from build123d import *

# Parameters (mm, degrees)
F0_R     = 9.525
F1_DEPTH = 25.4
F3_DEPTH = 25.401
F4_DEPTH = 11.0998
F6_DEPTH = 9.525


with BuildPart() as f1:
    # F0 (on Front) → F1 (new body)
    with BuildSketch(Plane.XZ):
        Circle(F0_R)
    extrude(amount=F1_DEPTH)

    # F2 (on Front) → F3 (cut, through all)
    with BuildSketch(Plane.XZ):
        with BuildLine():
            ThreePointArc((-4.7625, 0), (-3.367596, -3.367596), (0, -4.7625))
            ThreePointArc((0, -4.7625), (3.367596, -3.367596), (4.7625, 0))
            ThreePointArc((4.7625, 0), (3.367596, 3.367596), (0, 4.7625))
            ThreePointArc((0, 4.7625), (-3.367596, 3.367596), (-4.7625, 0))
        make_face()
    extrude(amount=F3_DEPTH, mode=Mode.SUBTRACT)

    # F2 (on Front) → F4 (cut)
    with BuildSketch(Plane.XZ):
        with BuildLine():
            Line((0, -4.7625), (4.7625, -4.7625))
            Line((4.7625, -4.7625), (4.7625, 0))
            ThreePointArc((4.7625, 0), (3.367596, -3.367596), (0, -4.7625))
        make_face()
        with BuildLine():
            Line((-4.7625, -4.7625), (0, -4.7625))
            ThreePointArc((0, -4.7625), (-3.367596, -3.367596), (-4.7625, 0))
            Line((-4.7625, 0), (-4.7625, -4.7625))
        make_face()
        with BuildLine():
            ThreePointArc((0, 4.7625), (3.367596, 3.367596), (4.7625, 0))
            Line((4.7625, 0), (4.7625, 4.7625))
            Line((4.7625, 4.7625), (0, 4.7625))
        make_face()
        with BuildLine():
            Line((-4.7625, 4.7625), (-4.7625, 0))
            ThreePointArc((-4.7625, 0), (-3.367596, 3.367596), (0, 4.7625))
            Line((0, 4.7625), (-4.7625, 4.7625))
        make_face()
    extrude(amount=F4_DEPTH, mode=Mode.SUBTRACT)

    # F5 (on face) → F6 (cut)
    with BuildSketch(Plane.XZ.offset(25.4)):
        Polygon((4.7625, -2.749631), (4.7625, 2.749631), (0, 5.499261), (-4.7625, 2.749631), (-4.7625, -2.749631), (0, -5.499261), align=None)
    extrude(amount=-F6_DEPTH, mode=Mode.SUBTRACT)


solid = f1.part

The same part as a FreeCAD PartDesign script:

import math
import FreeCAD as App
import Part
import Sketcher
from FreeCAD import Vector
Q = App.Units.Quantity


def add_polygon(sketch, points):
    """Adds a closed chain of lines whose ends are joined by coincident constraints."""
    first, n = sketch.GeometryCount, len(points)
    for a, b in zip(points, points[1:] + points[:1]):
        sketch.addGeometry(Part.LineSegment(App.Vector(*a, 0), App.Vector(*b, 0)), False)
    for i in range(n):
        sketch.addConstraint(Sketcher.Constraint("Coincident", first + i, 2, first + (i + 1) % n, 1))

doc = App.newDocument("Part")
body = doc.addObject("PartDesign::Body", "Body")

sketch1 = doc.addObject("Sketcher::SketchObject", "Sketch")
body.addObject(sketch1)
sketch1.AttachmentSupport = (doc.XZ_Plane, [""])
sketch1.MapMode = "FlatFace"
sketch1.addGeometry(Part.Circle(Vector(0, 0, 0), Vector(0, 0, 1), 9.525), False)
sketch1.addConstraint(Sketcher.Constraint("Coincident", 0, 3, -1, 1))
sketch1.addConstraint(Sketcher.Constraint("Diameter", 0, Q("0.75 in")))
pad1 = doc.addObject("PartDesign::Pad", "Pad")
body.addObject(pad1)
pad1.Profile = sketch1
pad1.Length = Q("1 in")

sketch2 = doc.addObject("Sketcher::SketchObject", "Sketch001")
body.addObject(sketch2)
sketch2.AttachmentSupport = (doc.XZ_Plane, [""])
sketch2.MapMode = "FlatFace"
sketch2.addGeometry(Part.ArcOfCircle(Part.Circle(Vector(0, 0, 0), Vector(0, 0, 1), 4.7625), math.radians(-179.999998), math.radians(-90.000002)), False)
sketch2.addGeometry(Part.ArcOfCircle(Part.Circle(Vector(0, 0, 0), Vector(0, 0, 1), 4.7625), math.radians(-89.999998), math.radians(-0.000002)), False)
sketch2.addGeometry(Part.ArcOfCircle(Part.Circle(Vector(0, 0, 0), Vector(0, 0, 1), 4.7625), math.radians(0.000002), math.radians(89.999998)), False)
sketch2.addGeometry(Part.ArcOfCircle(Part.Circle(Vector(0, 0, 0), Vector(0, 0, 1), 4.7625), math.radians(90.000002), math.radians(179.999998)), False)
sketch2.addConstraint(Sketcher.Constraint("Tangent", 0, 2, 1, 1))
sketch2.addConstraint(Sketcher.Constraint("Tangent", 1, 2, 2, 1))
sketch2.addConstraint(Sketcher.Constraint("Tangent", 2, 2, 3, 1))
sketch2.addConstraint(Sketcher.Constraint("Tangent", 3, 2, 0, 1))
sketch2.addConstraint(Sketcher.Constraint("Coincident", 0, 3, -1, 1))
sketch2.addConstraint(Sketcher.Constraint("Equal", 0, 1))
sketch2.addConstraint(Sketcher.Constraint("PointOnObject", 0, 2, -2))
sketch2.addConstraint(Sketcher.Constraint("PointOnObject", 1, 2, -1))
sketch2.addConstraint(Sketcher.Constraint("PointOnObject", 2, 2, -2))
sketch2.addConstraint(Sketcher.Constraint("PointOnObject", 3, 2, -1))
sketch2.addConstraint(Sketcher.Constraint("Radius", 0, Q("0.1875 in")))
pocket1 = doc.addObject("PartDesign::Pocket", "Pocket")
body.addObject(pocket1)
pocket1.Profile = sketch2
pocket1.Type = "ThroughAll"
pocket1.Reversed = True

sketch3 = doc.addObject("Sketcher::SketchObject", "Sketch002")
body.addObject(sketch3)
sketch3.AttachmentSupport = (doc.XZ_Plane, [""])
sketch3.MapMode = "FlatFace"
sketch3.addGeometry(Part.LineSegment(Vector(0, -4.7625, 0), Vector(4.7625, -4.7625, 0)), False)
sketch3.addGeometry(Part.LineSegment(Vector(4.7625, -4.7625, 0), Vector(4.7625, 0, 0)), False)
sketch3.addGeometry(Part.ArcOfCircle(Part.Circle(Vector(0, 0, 0), Vector(0, 0, 1), 4.7625), math.radians(-89.999998), math.radians(-0.000002)), False)
sketch3.addGeometry(Part.LineSegment(Vector(-4.7625, -4.7625, 0), Vector(0, -4.7625, 0)), False)
sketch3.addGeometry(Part.ArcOfCircle(Part.Circle(Vector(0, 0, 0), Vector(0, 0, 1), 4.7625), math.radians(-179.999998), math.radians(-90.000002)), False)
sketch3.addGeometry(Part.LineSegment(Vector(-4.7625, 0, 0), Vector(-4.7625, -4.7625, 0)), False)
sketch3.addGeometry(Part.ArcOfCircle(Part.Circle(Vector(0, 0, 0), Vector(0, 0, 1), 4.7625), math.radians(0.000002), math.radians(89.999998)), False)
sketch3.addGeometry(Part.LineSegment(Vector(4.7625, 0, 0), Vector(4.7625, 4.7625, 0)), False)
sketch3.addGeometry(Part.LineSegment(Vector(4.7625, 4.7625, 0), Vector(0, 4.7625, 0)), False)
sketch3.addGeometry(Part.LineSegment(Vector(-4.7625, 4.7625, 0), Vector(-4.7625, 0, 0)), False)
sketch3.addGeometry(Part.ArcOfCircle(Part.Circle(Vector(0, 0, 0), Vector(0, 0, 1), 4.7625), math.radians(90.000002), math.radians(179.999998)), False)
sketch3.addGeometry(Part.LineSegment(Vector(0, 4.7625, 0), Vector(-4.7625, 4.7625, 0)), False)
sketch3.addConstraint(Sketcher.Constraint("Coincident", 0, 2, 1, 1))
sketch3.addConstraint(Sketcher.Constraint("Tangent", 1, 2, 2, 2))
sketch3.addConstraint(Sketcher.Constraint("Tangent", 2, 1, 0, 1))
sketch3.addConstraint(Sketcher.Constraint("Tangent", 3, 2, 4, 2))
sketch3.addConstraint(Sketcher.Constraint("Tangent", 4, 1, 5, 1))
sketch3.addConstraint(Sketcher.Constraint("Coincident", 5, 2, 3, 1))
sketch3.addConstraint(Sketcher.Constraint("Tangent", 6, 1, 7, 1))
sketch3.addConstraint(Sketcher.Constraint("Coincident", 7, 2, 8, 1))
sketch3.addConstraint(Sketcher.Constraint("Tangent", 8, 2, 6, 2))
sketch3.addConstraint(Sketcher.Constraint("Tangent", 9, 2, 10, 2))
sketch3.addConstraint(Sketcher.Constraint("Tangent", 10, 1, 11, 1))
sketch3.addConstraint(Sketcher.Constraint("Coincident", 11, 2, 9, 1))
sketch3.addConstraint(Sketcher.Constraint("Horizontal", 0))
sketch3.addConstraint(Sketcher.Constraint("Vertical", 1))
sketch3.addConstraint(Sketcher.Constraint("Horizontal", 3))
sketch3.addConstraint(Sketcher.Constraint("Vertical", 5))
sketch3.addConstraint(Sketcher.Constraint("Vertical", 7))
sketch3.addConstraint(Sketcher.Constraint("Horizontal", 8))
sketch3.addConstraint(Sketcher.Constraint("Vertical", 9))
sketch3.addConstraint(Sketcher.Constraint("Horizontal", 11))
sketch3.addConstraint(Sketcher.Constraint("Coincident", 2, 3, -1, 1))
sketch3.addConstraint(Sketcher.Constraint("Coincident", 4, 3, -1, 1))
sketch3.addConstraint(Sketcher.Constraint("Coincident", 6, 3, -1, 1))
sketch3.addConstraint(Sketcher.Constraint("Coincident", 10, 3, -1, 1))
sketch3.addConstraint(Sketcher.Constraint("Equal", 2, 4))
sketch3.addConstraint(Sketcher.Constraint("Equal", 4, 6))
sketch3.addConstraint(Sketcher.Constraint("Equal", 6, 10))
sketch3.addConstraint(Sketcher.Constraint("Radius", 2, Q("0.1875 in")))
pocket2 = doc.addObject("PartDesign::Pocket", "Pocket001")
body.addObject(pocket2)
pocket2.Profile = sketch3
pocket2.Length = Q("0.437 in")
pocket2.Reversed = True

sketch4 = doc.addObject("Sketcher::SketchObject", "Sketch003")
body.addObject(sketch4)
sketch4.AttachmentSupport = (doc.XZ_Plane, [""])
sketch4.MapMode = "FlatFace"
sketch4.AttachmentOffset = App.Placement(Vector(0, 0, 1 * 25.4), App.Rotation())
add_polygon(sketch4, [(4.7625, -2.749631), (4.7625, 2.749631), (0, 5.499261), (-4.7625, 2.749631), (-4.7625, -2.749631), (0, -5.499261)])
sketch4.addConstraint(Sketcher.Constraint("Vertical", 0))
sketch4.addConstraint(Sketcher.Constraint("Vertical", 3))
sketch4.addConstraint(Sketcher.Constraint("Symmetric", 0, 2, 3, 2, -1, 1))
sketch4.addConstraint(Sketcher.Constraint("Symmetric", 1, 2, 4, 2, -1, 1))
sketch4.addConstraint(Sketcher.Constraint("PointOnObject", 1, 2, -2))
sketch4.addConstraint(Sketcher.Constraint("Parallel", 2, 5))
sketch4.addConstraint(Sketcher.Constraint("Horizontal", 0, 2, 2, 2))
sketch4.addConstraint(Sketcher.Constraint("Angle", 1, Q("150.000006 deg")))
sketch4.addConstraint(Sketcher.Constraint("DistanceX", -1, 1, 0, 2, Q("0.1875 in")))
sketch4.addConstraint(Sketcher.Constraint("DistanceY", 0, 1, 0, 2, 5.499262))
pocket3 = doc.addObject("PartDesign::Pocket", "Pocket002")
body.addObject(pocket3)
pocket3.Profile = sketch4
pocket3.Length = Q("0.375 in")

doc.recompute()
